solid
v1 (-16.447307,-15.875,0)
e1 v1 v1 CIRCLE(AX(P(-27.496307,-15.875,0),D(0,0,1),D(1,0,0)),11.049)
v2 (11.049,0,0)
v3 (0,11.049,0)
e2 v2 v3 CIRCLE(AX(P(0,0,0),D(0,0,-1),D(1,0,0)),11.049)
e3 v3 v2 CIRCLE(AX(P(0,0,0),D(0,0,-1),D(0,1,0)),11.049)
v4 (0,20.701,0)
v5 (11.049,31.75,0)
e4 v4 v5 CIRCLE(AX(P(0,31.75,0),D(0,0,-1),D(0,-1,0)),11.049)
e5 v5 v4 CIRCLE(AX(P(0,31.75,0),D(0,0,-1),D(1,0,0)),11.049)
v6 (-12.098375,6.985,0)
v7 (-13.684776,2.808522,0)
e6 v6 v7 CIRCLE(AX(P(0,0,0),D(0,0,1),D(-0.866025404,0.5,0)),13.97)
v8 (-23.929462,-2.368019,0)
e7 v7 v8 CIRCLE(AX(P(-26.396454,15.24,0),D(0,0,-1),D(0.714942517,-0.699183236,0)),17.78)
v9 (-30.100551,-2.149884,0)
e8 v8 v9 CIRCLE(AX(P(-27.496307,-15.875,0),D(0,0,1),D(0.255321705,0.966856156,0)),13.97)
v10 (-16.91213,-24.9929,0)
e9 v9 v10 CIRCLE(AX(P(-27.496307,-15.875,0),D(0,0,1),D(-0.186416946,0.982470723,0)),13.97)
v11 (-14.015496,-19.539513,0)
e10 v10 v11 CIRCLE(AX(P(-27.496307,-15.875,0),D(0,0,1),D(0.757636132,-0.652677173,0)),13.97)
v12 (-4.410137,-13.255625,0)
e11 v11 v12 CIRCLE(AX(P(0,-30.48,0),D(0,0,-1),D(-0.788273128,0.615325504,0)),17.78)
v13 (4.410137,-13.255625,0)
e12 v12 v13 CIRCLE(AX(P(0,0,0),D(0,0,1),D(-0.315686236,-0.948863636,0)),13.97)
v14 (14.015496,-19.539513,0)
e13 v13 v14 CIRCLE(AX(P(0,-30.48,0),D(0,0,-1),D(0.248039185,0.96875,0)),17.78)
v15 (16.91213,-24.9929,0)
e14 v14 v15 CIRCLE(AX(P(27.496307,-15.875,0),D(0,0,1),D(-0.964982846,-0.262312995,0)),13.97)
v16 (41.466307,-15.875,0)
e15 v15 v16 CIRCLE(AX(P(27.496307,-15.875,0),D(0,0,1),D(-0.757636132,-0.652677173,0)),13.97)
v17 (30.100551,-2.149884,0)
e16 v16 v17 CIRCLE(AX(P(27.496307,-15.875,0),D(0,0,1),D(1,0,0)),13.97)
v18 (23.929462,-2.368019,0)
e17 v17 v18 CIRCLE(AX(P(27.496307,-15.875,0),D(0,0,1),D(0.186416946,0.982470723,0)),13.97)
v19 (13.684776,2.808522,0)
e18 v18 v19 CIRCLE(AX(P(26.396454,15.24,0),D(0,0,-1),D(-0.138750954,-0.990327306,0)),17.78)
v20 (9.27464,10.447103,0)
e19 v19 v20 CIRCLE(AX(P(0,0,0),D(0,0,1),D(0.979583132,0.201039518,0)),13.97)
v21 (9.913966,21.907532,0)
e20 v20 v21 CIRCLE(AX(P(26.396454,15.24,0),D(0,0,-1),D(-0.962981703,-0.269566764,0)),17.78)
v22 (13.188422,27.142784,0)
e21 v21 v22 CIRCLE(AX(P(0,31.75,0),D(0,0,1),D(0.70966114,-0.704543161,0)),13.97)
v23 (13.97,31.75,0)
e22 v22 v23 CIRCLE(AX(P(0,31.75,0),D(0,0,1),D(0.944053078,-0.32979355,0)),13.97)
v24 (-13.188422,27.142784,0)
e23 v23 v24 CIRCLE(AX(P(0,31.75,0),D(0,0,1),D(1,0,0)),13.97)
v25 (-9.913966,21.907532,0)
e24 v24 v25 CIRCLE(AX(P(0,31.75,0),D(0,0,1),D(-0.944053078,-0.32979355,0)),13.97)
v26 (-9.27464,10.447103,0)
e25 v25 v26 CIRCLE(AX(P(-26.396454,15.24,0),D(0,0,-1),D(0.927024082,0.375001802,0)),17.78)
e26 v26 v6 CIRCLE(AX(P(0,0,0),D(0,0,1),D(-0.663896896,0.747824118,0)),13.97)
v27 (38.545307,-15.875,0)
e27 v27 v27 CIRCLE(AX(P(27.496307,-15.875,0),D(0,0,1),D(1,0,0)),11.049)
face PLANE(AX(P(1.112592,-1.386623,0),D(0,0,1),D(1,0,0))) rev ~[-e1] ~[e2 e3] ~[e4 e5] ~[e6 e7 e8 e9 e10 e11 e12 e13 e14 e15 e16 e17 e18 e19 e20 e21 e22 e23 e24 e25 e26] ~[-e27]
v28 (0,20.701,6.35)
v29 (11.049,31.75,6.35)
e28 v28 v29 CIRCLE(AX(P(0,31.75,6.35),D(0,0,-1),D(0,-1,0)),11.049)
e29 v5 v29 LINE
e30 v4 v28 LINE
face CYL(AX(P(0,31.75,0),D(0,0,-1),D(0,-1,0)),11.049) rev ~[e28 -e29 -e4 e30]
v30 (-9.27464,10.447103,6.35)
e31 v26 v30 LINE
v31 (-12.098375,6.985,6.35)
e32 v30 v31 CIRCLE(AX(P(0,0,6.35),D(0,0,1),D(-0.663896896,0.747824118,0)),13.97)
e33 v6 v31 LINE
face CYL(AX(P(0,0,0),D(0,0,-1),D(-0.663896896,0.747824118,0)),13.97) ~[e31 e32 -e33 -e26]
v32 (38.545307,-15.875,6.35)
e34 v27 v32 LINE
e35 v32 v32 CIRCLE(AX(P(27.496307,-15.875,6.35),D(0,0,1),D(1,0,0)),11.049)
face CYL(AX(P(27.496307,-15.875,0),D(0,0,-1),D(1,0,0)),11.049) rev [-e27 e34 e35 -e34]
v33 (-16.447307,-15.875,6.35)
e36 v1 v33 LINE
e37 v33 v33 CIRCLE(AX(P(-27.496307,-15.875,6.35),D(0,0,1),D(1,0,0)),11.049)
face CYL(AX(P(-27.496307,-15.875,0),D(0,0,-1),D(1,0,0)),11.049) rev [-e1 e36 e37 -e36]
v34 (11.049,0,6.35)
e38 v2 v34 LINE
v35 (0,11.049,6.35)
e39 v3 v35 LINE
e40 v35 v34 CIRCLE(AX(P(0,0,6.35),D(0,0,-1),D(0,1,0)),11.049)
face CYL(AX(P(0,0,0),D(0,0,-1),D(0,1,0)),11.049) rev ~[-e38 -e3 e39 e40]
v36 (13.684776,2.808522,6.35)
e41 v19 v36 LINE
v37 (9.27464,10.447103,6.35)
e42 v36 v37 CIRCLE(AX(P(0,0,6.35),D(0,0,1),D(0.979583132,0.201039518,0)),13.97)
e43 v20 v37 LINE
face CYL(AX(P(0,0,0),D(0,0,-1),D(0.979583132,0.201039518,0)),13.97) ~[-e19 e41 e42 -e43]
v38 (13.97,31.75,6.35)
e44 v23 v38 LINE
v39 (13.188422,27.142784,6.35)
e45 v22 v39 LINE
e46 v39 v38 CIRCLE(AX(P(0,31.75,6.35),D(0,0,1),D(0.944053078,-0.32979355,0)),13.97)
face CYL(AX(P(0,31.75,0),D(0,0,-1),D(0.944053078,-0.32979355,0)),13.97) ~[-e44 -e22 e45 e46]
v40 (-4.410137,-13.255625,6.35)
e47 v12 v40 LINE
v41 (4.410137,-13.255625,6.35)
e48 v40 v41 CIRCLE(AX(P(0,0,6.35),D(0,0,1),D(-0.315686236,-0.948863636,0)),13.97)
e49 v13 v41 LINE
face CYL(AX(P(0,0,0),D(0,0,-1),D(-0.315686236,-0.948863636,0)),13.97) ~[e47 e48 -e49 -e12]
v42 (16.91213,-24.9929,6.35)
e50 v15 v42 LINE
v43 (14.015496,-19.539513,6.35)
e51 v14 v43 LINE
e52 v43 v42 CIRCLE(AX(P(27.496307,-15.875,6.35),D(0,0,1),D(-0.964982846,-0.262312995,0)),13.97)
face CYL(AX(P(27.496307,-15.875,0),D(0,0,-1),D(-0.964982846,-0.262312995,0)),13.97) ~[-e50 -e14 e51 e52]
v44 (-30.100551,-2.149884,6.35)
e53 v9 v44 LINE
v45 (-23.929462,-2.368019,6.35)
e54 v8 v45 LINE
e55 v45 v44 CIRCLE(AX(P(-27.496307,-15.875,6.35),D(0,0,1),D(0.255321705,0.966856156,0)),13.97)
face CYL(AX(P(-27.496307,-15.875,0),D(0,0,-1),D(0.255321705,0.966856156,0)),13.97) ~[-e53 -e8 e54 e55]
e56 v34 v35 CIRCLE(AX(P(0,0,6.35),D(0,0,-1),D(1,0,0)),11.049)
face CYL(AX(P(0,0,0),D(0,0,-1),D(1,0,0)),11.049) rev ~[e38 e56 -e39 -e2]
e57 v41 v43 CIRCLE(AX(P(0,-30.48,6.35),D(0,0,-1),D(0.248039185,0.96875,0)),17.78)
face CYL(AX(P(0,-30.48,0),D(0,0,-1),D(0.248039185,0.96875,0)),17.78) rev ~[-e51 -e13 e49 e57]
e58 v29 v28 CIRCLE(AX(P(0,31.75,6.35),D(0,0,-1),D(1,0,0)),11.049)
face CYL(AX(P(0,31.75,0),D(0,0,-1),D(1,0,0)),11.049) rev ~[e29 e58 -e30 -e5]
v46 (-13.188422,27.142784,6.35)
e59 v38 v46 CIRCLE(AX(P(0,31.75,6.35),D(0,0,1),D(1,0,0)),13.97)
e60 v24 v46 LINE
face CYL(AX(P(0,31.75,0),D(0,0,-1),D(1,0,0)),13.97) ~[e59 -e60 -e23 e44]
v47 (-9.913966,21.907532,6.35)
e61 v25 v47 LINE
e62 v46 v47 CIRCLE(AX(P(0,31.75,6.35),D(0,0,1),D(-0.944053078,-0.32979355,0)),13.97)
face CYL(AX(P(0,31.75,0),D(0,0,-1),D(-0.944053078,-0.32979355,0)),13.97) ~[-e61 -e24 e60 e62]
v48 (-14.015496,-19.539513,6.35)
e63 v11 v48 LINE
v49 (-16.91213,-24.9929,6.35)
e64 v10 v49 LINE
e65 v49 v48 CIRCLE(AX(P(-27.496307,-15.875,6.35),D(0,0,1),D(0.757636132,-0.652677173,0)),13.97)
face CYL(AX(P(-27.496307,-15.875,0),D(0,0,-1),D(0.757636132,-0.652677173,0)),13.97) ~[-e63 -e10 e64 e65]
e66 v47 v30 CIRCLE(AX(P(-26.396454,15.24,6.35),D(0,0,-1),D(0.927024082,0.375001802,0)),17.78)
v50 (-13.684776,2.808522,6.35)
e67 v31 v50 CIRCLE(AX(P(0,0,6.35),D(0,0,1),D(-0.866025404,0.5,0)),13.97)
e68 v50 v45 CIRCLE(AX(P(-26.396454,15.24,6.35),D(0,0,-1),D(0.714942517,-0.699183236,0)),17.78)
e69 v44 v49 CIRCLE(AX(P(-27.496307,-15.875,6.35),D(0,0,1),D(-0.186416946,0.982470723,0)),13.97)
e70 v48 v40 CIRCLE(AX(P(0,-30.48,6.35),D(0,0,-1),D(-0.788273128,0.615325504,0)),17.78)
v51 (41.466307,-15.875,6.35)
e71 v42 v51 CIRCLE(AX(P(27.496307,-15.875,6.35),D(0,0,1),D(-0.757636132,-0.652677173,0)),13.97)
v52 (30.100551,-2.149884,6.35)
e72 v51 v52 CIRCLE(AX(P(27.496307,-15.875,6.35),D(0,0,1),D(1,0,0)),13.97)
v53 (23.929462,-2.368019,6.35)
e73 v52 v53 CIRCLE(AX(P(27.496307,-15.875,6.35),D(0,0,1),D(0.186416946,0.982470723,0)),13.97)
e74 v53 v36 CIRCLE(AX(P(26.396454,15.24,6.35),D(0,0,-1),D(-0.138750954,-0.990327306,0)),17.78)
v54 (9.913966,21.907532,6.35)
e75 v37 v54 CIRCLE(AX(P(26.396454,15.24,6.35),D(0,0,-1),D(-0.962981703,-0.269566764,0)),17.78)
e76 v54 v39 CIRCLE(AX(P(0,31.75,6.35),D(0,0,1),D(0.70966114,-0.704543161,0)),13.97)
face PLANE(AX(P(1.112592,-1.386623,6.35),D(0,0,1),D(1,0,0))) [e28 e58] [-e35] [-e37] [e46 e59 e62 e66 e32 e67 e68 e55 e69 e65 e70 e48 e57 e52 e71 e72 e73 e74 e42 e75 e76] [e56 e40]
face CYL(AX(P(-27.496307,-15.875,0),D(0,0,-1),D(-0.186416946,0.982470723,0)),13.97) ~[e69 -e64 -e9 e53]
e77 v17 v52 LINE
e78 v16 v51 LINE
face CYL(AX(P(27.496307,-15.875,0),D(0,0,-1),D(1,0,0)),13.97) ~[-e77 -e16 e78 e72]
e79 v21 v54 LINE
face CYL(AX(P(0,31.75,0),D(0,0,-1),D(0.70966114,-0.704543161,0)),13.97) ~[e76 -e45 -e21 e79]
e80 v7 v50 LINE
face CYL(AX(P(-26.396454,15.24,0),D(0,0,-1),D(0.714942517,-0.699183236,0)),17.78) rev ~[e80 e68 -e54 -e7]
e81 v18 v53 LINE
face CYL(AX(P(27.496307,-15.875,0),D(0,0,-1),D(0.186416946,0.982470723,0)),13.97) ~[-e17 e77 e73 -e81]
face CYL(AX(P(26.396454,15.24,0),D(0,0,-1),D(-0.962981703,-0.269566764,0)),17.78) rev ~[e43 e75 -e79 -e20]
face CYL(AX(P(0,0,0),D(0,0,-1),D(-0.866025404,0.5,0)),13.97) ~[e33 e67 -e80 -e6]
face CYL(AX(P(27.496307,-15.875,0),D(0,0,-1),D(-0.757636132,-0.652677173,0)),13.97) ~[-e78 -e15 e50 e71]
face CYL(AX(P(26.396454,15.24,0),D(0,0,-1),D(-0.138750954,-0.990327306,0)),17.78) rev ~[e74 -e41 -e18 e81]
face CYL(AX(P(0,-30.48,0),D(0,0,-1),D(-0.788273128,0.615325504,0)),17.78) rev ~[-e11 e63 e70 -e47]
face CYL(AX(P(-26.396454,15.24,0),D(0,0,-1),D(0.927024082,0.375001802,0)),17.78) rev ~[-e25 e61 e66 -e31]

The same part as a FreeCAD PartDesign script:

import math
import FreeCAD as App
import Part
import Sketcher

V = App.Vector
Q = App.Units.Quantity

doc = App.newDocument("Part")
body = doc.addObject("PartDesign::Body", "Body")

# Sketch on XY plane
sketch1 = doc.addObject("Sketcher::SketchObject", "Sketch")
body.addObject(sketch1)
sketch1.AttachmentSupport = (doc.XY_Plane, [""])
sketch1.MapMode = "FlatFace"
sketch1.addGeometry([
    Part.ArcOfCircle(Part.Circle(V(0, 0, 0), V(0, 0, 1), 13.97), math.radians(150), math.radians(168.402246)),  # 0
    Part.ArcOfCircle(Part.Circle(V(-26.396454, 15.24, 0), V(0, 0, 1), 17.78), math.radians(-82.024424), math.radians(-44.361512)),  # 1
    Part.ArcOfCircle(Part.Circle(V(-27.496307, -15.875, 0), V(0, 0, 1), 13.97), math.radians(75.207351), math.radians(100.743755)),  # 2
    Part.ArcOfCircle(Part.Circle(V(-27.496307, -15.875, 0), V(0, 0, 1), 13.97), math.radians(100.743755), math.radians(319.256245)),  # 3
    Part.ArcOfCircle(Part.Circle(V(-27.496307, -15.875, 0), V(0, 0, 1), 13.97), math.radians(-40.743755), math.radians(-15.207351)),  # 4
    Part.ArcOfCircle(Part.Circle(V(0, -30.48, 0), V(0, 0, 1), 17.78), math.radians(104.361512), math.radians(142.024424)),  # 5
    Part.ArcOfCircle(Part.Circle(V(0, 0, 0), V(0, 0, 1), 13.97), math.radians(-108.402246), math.radians(-71.597754)),  # 6
    Part.ArcOfCircle(Part.Circle(V(0, -30.48, 0), V(0, 0, 1), 17.78), math.radians(37.975576), math.radians(75.638488)),  # 7
    Part.ArcOfCircle(Part.Circle(V(27.496307, -15.875, 0), V(0, 0, 1), 13.97), math.radians(-164.792649), math.radians(-139.256245)),  # 8
    Part.ArcOfCircle(Part.Circle(V(27.496307, -15.875, 0), V(0, 0, 1), 13.97), math.radians(-139.256245), math.radians(0)),  # 9
    Part.ArcOfCircle(Part.Circle(V(27.496307, -15.875, 0), V(0, 0, 1), 13.97), math.radians(0), math.radians(79.256245)),  # 10
    Part.ArcOfCircle(Part.Circle(V(27.496307, -15.875, 0), V(0, 0, 1), 13.97), math.radians(79.256245), math.radians(104.792649)),  # 11
    Part.ArcOfCircle(Part.Circle(V(26.396454, 15.24, 0), V(0, 0, 1), 17.78), math.radians(-135.638488), math.radians(-97.975576)),  # 12
    Part.ArcOfCircle(Part.Circle(V(0, 0, 0), V(0, 0, 1), 13.97), math.radians(11.597754), math.radians(48.402246)),  # 13
    Part.ArcOfCircle(Part.Circle(V(26.396454, 15.24, 0), V(0, 0, 1), 17.78), math.radians(157.975576), math.radians(195.638488)),  # 14
    Part.ArcOfCircle(Part.Circle(V(0, 31.75, 0), V(0, 0, 1), 13.97), math.radians(-44.792649), math.radians(-19.256245)),  # 15
    Part.ArcOfCircle(Part.Circle(V(0, 31.75, 0), V(0, 0, 1), 13.97), math.radians(-19.256245), math.radians(0)),  # 16
    Part.ArcOfCircle(Part.Circle(V(0, 31.75, 0), V(0, 0, 1), 13.97), math.radians(0), math.radians(199.256245)),  # 17
    Part.ArcOfCircle(Part.Circle(V(0, 31.75, 0), V(0, 0, 1), 13.97), math.radians(-160.743755), math.radians(-135.207351)),  # 18
    Part.ArcOfCircle(Part.Circle(V(-26.396454, 15.24, 0), V(0, 0, 1), 17.78), math.radians(-15.638488), math.radians(22.024424)),  # 19
    Part.ArcOfCircle(Part.Circle(V(0, 0, 0), V(0, 0, 1), 13.97), math.radians(131.597754), math.radians(150)),  # 20
    Part.Circle(V(-27.496307, -15.875, 0), V(0, 0, 1), 11.049),  # 21
    Part.Circle(V(27.496307, -15.875, 0), V(0, 0, 1), 11.049),  # 22
    Part.ArcOfCircle(Part.Circle(V(0, 0, 0), V(0, 0, 1), 11.049), math.radians(0), math.radians(90)),  # 23
    Part.ArcOfCircle(Part.Circle(V(0, 0, 0), V(0, 0, 1), 11.049), math.radians(90), math.radians(360)),  # 24
    Part.ArcOfCircle(Part.Circle(V(0, 31.75, 0), V(0, 0, 1), 11.049), math.radians(0), math.radians(270)),  # 25
    Part.ArcOfCircle(Part.Circle(V(0, 31.75, 0), V(0, 0, 1), 11.049), math.radians(-90), math.radians(0)),  # 26
], False)
sketch1.addConstraint([
    Sketcher.Constraint("Coincident", 0, 2, 1, 2),
    Sketcher.Constraint("Coincident", 1, 1, 2, 1),
    Sketcher.Constraint("Tangent", 2, 2, 3, 1),
    Sketcher.Constraint("Tangent", 3, 2, 4, 1),
    Sketcher.Constraint("Coincident", 4, 2, 5, 2),
    Sketcher.Constraint("Coincident", 5, 1, 6, 1),
    Sketcher.Constraint("Coincident", 6, 2, 7, 2),
    Sketcher.Constraint("Coincident", 7, 1, 8, 1),
    Sketcher.Constraint("Tangent", 8, 2, 9, 1),
    Sketcher.Constraint("Tangent", 9, 2, 10, 1),
    Sketcher.Constraint("Tangent", 10, 2, 11, 1),
    Sketcher.Constraint("Coincident", 11, 2, 12, 2),
    Sketcher.Constraint("Coincident", 12, 1, 13, 1),
    Sketcher.Constraint("Coincident", 13, 2, 14, 2),
    Sketcher.Constraint("Coincident", 14, 1, 15, 1),
    Sketcher.Constraint("Tangent", 15, 2, 16, 1),
    Sketcher.Constraint("Tangent", 16, 2, 17, 1),
    Sketcher.Constraint("Tangent", 17, 2, 18, 1),
    Sketcher.Constraint("Coincident", 18, 2, 19, 2),
    Sketcher.Constraint("Coincident", 19, 1, 20, 1),
    Sketcher.Constraint("Tangent", 20, 2, 0, 1),
    Sketcher.Constraint("Tangent", 23, 1, 24, 2),
    Sketcher.Constraint("Coincident", 24, 1, 23, 2),
    Sketcher.Constraint("Tangent", 25, 1, 26, 2),
    Sketcher.Constraint("Coincident", 26, 1, 25, 2),
    Sketcher.Constraint("Coincident", 0, 3, -1, 1),
    Sketcher.Constraint("Coincident", 6, 3, -1, 1),
    Sketcher.Constraint("Coincident", 13, 3, -1, 1),
    Sketcher.Constraint("Coincident", 23, 3, -1, 1),
    Sketcher.Constraint("Coincident", 4, 3, 2, 3),
    Sketcher.Constraint("Coincident", 7, 3, 5, 3),
    Sketcher.Constraint("Coincident", 10, 3, 8, 3),
    Sketcher.Constraint("Coincident", 14, 3, 12, 3),
    Sketcher.Constraint("Coincident", 17, 3, 15, 3),
    Sketcher.Constraint("Coincident", 19, 3, 1, 3),
    Sketcher.Constraint("Coincident", 21, 3, 2, 3),
    Sketcher.Constraint("Coincident", 22, 3, 8, 3),
    Sketcher.Constraint("Coincident", 25, 3, 15, 3),
    Sketcher.Constraint("Equal", 0, 2),
    Sketcher.Constraint("Equal", 1, 5),
    Sketcher.Constraint("Equal", 4, 6),
    Sketcher.Constraint("Equal", 5, 7),
    Sketcher.Constraint("Equal", 6, 8),
    Sketcher.Constraint("Equal", 10, 11),
    Sketcher.Constraint("Equal", 7, 12),
    Sketcher.Constraint("Equal", 11, 13),
    Sketcher.Constraint("Equal", 12, 14),
    Sketcher.Constraint("Equal", 13, 15),
    Sketcher.Constraint("Equal", 17, 18),
    Sketcher.Constraint("Equal", 14, 19),
    Sketcher.Constraint("Equal", 18, 20),
    Sketcher.Constraint("Equal", 21, 22),
    Sketcher.Constraint("Equal", 22, 23),
    Sketcher.Constraint("Equal", 24, 25),
    Sketcher.Constraint("Symmetric", 2, 3, 8, 3, -2),
    Sketcher.Constraint("Symmetric", 1, 3, 12, 3, -2),
    Sketcher.Constraint("Symmetric", 15, 2, 17, 2, -2),
    Sketcher.Constraint("PointOnObject", 5, 3, -2),
    Sketcher.Constraint("PointOnObject", 23, 1, -1),
    Sketcher.Constraint("PointOnObject", 24, 1, -2),
    Sketcher.Constraint("PointOnObject", 26, 1, -2),
    Sketcher.Constraint("Horizontal", 3, 2, 8, 2),
    Sketcher.Constraint("Horizontal", 22, 3, 9, 2),
    Sketcher.Constraint("Horizontal", 2, 2, 10, 2),
    Sketcher.Constraint("Horizontal", 26, 3, 16, 2),
    Sketcher.Constraint("Horizontal", 16, 2, 25, 1),
    Sketcher.Constraint("Radius", 1, Q("0.7 in")),
    Sketcher.Constraint("Diameter", 21, Q("0.87 in")),
    Sketcher.Constraint("Radius", 0, Q("0.55 in")),
    Sketcher.Constraint("DistanceY", -1, 1, 1, 3, Q("0.6 in")),
    Sketcher.Constraint("DistanceY", 5, 3, -1, 1, Q("1.2 in")),
    Sketcher.Constraint("DistanceY", -1, 1, 15, 3, Q("1.25 in")),
    Sketcher.Constraint("DistanceY", 2, 3, -1, 1, Q("0.625 in")),
    Sketcher.Constraint("DistanceY", -1, 1, 20, 2, Q("0.275 in")),
    Sketcher.Constraint("DistanceX", 4, 3, 3, 2, Q("0.4166999 in")),
    Sketcher.Constraint("DistanceX", 0, 2, 20, 2, 1.586401),
    Sketcher.Constraint("DistanceY", 1, 1, -1, 1, 2.368019),
    Sketcher.Constraint("DistanceX", 2, 2, -1, 1, 30.100551),
    Sketcher.Constraint("DistanceX", -1, 1, 15, 2, 13.188422),
])
pad1 = doc.addObject("PartDesign::Pad", "Pad")
body.addObject(pad1)
pad1.Profile = sketch1
pad1.Length = Q("0.25 in")

doc.recompute()
